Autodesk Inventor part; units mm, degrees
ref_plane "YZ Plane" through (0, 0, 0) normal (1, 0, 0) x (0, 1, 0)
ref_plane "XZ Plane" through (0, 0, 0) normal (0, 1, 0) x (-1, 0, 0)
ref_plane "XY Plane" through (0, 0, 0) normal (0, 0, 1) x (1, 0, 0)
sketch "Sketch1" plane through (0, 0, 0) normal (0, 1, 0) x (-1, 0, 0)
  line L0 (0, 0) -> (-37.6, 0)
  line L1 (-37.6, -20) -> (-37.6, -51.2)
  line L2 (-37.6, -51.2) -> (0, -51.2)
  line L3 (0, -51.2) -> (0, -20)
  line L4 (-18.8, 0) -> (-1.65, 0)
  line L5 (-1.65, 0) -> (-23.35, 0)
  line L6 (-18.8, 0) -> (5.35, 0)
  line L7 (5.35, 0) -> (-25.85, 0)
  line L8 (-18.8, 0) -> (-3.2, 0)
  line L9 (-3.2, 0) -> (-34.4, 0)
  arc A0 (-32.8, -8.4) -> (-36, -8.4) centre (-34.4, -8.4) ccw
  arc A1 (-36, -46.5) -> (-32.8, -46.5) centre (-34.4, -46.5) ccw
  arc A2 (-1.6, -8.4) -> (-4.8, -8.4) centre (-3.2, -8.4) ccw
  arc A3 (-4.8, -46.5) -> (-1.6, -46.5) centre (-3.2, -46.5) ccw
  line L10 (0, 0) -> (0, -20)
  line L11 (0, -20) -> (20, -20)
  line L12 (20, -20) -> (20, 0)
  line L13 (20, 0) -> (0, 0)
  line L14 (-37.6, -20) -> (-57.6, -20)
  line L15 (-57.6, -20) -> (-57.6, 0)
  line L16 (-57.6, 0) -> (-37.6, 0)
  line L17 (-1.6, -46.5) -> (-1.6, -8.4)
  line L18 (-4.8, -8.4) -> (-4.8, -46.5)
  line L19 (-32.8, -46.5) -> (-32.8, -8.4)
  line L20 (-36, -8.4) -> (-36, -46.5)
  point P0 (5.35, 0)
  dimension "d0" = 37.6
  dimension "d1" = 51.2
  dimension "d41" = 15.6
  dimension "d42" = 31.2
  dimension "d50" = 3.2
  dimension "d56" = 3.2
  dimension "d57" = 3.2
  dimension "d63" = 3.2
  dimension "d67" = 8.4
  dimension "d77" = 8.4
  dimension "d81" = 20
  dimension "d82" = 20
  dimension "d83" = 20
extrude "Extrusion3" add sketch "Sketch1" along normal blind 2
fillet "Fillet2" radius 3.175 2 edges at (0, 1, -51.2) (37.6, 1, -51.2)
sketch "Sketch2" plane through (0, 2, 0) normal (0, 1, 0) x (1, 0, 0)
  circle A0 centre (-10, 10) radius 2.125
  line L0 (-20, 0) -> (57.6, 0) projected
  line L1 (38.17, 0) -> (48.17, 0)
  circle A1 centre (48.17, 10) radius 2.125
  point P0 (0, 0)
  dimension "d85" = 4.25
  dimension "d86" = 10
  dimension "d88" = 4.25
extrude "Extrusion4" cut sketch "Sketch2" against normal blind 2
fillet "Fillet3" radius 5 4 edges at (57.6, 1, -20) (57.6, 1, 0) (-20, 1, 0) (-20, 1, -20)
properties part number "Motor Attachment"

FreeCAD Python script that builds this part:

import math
import FreeCAD as App
import Part
import Sketcher
from FreeCAD import Vector
Q = App.Units.Quantity


def edges_at(feature, points):
    """Names of the edges that pass closest to the given points."""
    edges = feature.Shape.Edges
    near = lambda p: min(range(len(edges)), key=lambda i: edges[i].distToShape(Part.Vertex(*p))[0])
    return sorted({f"Edge{near(p) + 1}" for p in points})

doc = App.newDocument("Part")
body = doc.addObject("PartDesign::Body", "Body")

# Sketch on XZ plane
sketch1 = body.newObject("Sketcher::SketchObject", "Sketch")
sketch1.AttachmentSupport = (doc.getObject("XZ_Plane"), [""])
sketch1.MapMode = "FlatFace"
sketch1.addGeometry([
    Part.LineSegment(Vector(0, -51.2, 0), Vector(0, -20, 0)),  # 0
    Part.LineSegment(Vector(0, -20, 0), Vector(-20, -20, 0)),  # 1
    Part.LineSegment(Vector(-20, -20, 0), Vector(-20, 0, 0)),  # 2
    Part.LineSegment(Vector(-20, 0, 0), Vector(57.6, 0, 0)),  # 3
    Part.LineSegment(Vector(57.6, 0, 0), Vector(57.6, -20, 0)),  # 4
    Part.LineSegment(Vector(57.6, -20, 0), Vector(37.6, -20, 0)),  # 5
    Part.LineSegment(Vector(37.6, -20, 0), Vector(37.6, -51.2, 0)),  # 6
    Part.LineSegment(Vector(37.6, -51.2, 0), Vector(0, -51.2, 0)),  # 7
    Part.ArcOfCircle(Part.Circle(Vector(34.4, -8.4, 0), Vector(0, 0, 1), 1.6), math.radians(0), math.radians(180)),  # 8
    Part.LineSegment(Vector(32.8, -8.4, 0), Vector(32.8, -46.5, 0)),  # 9
    Part.ArcOfCircle(Part.Circle(Vector(34.4, -46.5, 0), Vector(0, 0, 1), 1.6), math.radians(180), math.radians(360)),  # 10
    Part.LineSegment(Vector(36, -46.5, 0), Vector(36, -8.4, 0)),  # 11
    Part.ArcOfCircle(Part.Circle(Vector(3.2, -8.4, 0), Vector(0, 0, 1), 1.6), math.radians(0), math.radians(180)),  # 12
    Part.LineSegment(Vector(1.6, -8.4, 0), Vector(1.6, -46.5, 0)),  # 13
    Part.ArcOfCircle(Part.Circle(Vector(3.2, -46.5, 0), Vector(0, 0, 1), 1.6), math.radians(180), math.radians(360)),  # 14
    Part.LineSegment(Vector(4.8, -46.5, 0), Vector(4.8, -8.4, 0)),  # 15
], False)
sketch1.addConstraint([
    Sketcher.Constraint("Coincident", 0, 2, 1, 1),
    Sketcher.Constraint("Coincident", 1, 2, 2, 1),
    Sketcher.Constraint("Coincident", 2, 2, 3, 1),
    Sketcher.Constraint("Coincident", 3, 2, 4, 1),
    Sketcher.Constraint("Coincident", 4, 2, 5, 1),
    Sketcher.Constraint("Coincident", 5, 2, 6, 1),
    Sketcher.Constraint("Coincident", 6, 2, 7, 1),
    Sketcher.Constraint("Coincident", 7, 2, 0, 1),
    Sketcher.Constraint("Tangent", 8, 2, 9, 1),
    Sketcher.Constraint("Tangent", 9, 2, 10, 1),
    Sketcher.Constraint("Tangent", 10, 2, 11, 1),
    Sketcher.Constraint("Tangent", 11, 2, 8, 1),
    Sketcher.Constraint("Tangent", 12, 2, 13, 1),
    Sketcher.Constraint("Tangent", 13, 2, 14, 1),
    Sketcher.Constraint("Tangent", 14, 2, 15, 1),
    Sketcher.Constraint("Tangent", 15, 2, 12, 1),
    Sketcher.Constraint("Vertical", 0),
    Sketcher.Constraint("Horizontal", 1),
    Sketcher.Constraint("Vertical", 2),
    Sketcher.Constraint("Horizontal", 3),
    Sketcher.Constraint("Vertical", 4),
    Sketcher.Constraint("Horizontal", 5),
    Sketcher.Constraint("Vertical", 6),
    Sketcher.Constraint("Horizontal", 7),
    Sketcher.Constraint("Vertical", 9),
    Sketcher.Constraint("Vertical", 11),
    Sketcher.Constraint("Vertical", 13),
    Sketcher.Constraint("Vertical", 15),
    Sketcher.Constraint("Equal", 10, 12),
    Sketcher.Constraint("PointOnObject", 0, 2, -2),
    Sketcher.Constraint("PointOnObject", 2, 2, -1),
    Sketcher.Constraint("Horizontal", 8, 3, 12, 3),
    Sketcher.Constraint("Horizontal", 10, 3, 14, 3),
    Sketcher.Constraint("Horizontal", 1, 2, 4, 2),
    Sketcher.Constraint("Equal", 1, 5),
    Sketcher.Constraint("Equal", 5, 2),
    Sketcher.Constraint("Radius", 8, Q("1.6 mm")),
    Sketcher.Constraint("DistanceX", 1, 2, 1, 1, Q("20 mm")),
    Sketcher.Constraint("DistanceX", 7, 2, 7, 1, Q("37.6 mm")),
    Sketcher.Constraint("DistanceY", 0, 1, 0, 2, Q("31.2 mm")),
    Sketcher.Constraint("DistanceY", 8, 3, -1, 1, Q("8.4 mm")),
    Sketcher.Constraint("DistanceX", -1, 1, 12, 3, Q("3.2 mm")),
    Sketcher.Constraint("DistanceX", 12, 3, 8, 3, Q("31.2 mm")),
    Sketcher.Constraint("DistanceY", 9, 2, 9, 1, Q("38.1 mm")),
])
pad1 = body.newObject("PartDesign::Pad", "Pad")
pad1.Profile = sketch1
pad1.Length = 2
pad1.Reversed = True
doc.recompute()

fillet = body.newObject("PartDesign::Fillet", "Fillet")
fillet.Base = (pad1, edges_at(pad1, [(0, 1, -51.2), (37.6, 1, -51.2)]))
fillet.Radius = 3.175

# Sketch on XZ plane
sketch2 = body.newObject("Sketcher::SketchObject", "Sketch001")
sketch2.AttachmentSupport = (doc.getObject("XZ_Plane"), [""])
sketch2.MapMode = "FlatFace"
sketch2.AttachmentOffset = App.Placement(Vector(0, 0, -2), App.Rotation())
sketch2.addGeometry([
    Part.Circle(Vector(-10, -10, 0), Vector(0, 0, 1), 2.1),
    Part.Circle(Vector(48.2, -10, 0), Vector(0, 0, 1), 2.1),
], False)
sketch2.addConstraint([
    Sketcher.Constraint("Equal", 0, 1),
    Sketcher.Constraint("Horizontal", 0, 3, 1, 3),
    Sketcher.Constraint("Diameter", 0, Q("4.25 mm")),
    Sketcher.Constraint("DistanceX", 0, 3, -1, 1, Q("10 mm")),
    Sketcher.Constraint("DistanceY", 0, 3, -1, 1, Q("10 mm")),
    Sketcher.Constraint("DistanceX", -1, 1, 1, 3, Q("48.17 mm")),
])
pocket1 = body.newObject("PartDesign::Pocket", "Pocket")
pocket1.Profile = sketch2
pocket1.Length = 2
pocket1.Reversed = True
doc.recompute()

fillet2 = body.newObject("PartDesign::Fillet", "Fillet001")
fillet2.Base = (pocket1, edges_at(pocket1, [
    (57.6, 1, -20),
    (57.6, 1, 0),
    (-20, 1, 0),
    (-20, 1, -20),
]))
fillet2.Radius = 5

doc.recompute()
